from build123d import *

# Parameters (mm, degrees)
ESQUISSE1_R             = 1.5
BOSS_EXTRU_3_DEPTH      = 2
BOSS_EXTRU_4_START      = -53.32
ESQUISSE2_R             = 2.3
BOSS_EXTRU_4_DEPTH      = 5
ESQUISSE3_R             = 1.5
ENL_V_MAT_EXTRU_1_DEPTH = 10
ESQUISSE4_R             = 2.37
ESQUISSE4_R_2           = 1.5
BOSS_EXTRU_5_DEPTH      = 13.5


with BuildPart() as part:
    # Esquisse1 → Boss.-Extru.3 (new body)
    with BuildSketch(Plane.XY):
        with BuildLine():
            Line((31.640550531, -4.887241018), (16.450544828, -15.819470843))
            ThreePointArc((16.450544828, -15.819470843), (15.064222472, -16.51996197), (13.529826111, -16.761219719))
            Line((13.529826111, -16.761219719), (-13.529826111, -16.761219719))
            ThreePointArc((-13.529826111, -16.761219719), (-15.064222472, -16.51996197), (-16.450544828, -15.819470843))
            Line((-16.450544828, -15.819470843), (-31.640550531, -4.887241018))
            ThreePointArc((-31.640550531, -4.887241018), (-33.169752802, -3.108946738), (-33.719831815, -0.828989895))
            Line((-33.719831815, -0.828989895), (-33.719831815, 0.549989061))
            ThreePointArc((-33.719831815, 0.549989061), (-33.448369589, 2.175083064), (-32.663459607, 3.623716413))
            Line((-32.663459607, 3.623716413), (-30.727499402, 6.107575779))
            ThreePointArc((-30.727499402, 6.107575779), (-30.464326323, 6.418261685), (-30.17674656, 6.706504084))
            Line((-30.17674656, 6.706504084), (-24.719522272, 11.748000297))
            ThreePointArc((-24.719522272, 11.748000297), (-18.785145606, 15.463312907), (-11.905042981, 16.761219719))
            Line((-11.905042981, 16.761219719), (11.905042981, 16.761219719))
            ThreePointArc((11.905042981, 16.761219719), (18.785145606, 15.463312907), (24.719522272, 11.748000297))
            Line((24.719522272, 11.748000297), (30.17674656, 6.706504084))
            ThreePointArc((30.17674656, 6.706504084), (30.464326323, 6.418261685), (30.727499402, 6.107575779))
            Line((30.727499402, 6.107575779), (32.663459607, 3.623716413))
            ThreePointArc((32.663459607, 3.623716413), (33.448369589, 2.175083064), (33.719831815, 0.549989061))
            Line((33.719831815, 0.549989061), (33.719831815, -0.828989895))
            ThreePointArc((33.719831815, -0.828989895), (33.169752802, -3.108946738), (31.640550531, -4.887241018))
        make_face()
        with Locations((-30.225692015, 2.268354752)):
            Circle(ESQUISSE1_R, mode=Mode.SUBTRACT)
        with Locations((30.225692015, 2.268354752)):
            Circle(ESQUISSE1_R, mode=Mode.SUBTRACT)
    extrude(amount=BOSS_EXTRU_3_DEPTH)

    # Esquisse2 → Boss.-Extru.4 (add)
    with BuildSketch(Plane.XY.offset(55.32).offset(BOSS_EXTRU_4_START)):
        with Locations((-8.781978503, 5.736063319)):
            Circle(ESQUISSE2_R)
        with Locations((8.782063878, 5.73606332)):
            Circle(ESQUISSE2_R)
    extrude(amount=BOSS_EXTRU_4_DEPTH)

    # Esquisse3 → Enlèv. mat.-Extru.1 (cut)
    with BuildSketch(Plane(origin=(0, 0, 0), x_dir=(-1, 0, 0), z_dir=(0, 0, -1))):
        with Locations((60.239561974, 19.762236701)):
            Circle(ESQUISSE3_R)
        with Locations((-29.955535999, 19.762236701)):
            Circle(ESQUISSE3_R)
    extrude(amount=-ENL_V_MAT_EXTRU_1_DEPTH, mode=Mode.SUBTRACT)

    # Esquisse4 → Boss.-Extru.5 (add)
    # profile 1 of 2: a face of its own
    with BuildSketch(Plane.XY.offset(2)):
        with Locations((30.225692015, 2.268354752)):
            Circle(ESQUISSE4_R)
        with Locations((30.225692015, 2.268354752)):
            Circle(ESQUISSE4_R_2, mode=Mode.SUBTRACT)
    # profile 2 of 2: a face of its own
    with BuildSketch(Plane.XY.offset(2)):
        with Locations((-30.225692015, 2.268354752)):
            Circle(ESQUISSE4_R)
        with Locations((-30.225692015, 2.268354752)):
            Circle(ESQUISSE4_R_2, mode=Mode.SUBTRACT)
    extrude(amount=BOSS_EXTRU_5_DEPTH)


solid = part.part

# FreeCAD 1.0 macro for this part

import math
import FreeCAD as App
import Part
import Sketcher

doc = App.newDocument("Part")
body = doc.addObject("PartDesign::Body", "Body")

# Sketch on XY plane
sketch1 = doc.addObject("Sketcher::SketchObject", "Sketch")
body.addObject(sketch1)
sketch1.AttachmentSupport = (doc.XY_Plane, [""])
sketch1.MapMode = "FlatFace"
sketch1.addGeometry([
    Part.LineSegment(App.Vector(16.5, -15.8, 0), App.Vector(31.6, -4.9, 0)),  # 0
    Part.ArcOfCircle(Part.Circle(App.Vector(28.7, -0.8, 0), App.Vector(0, 0, 1), 5), math.radians(-54), math.radians(0)),  # 1
    Part.LineSegment(App.Vector(33.7, -0.8, 0), App.Vector(33.7, 0.5, 0)),  # 2
    Part.ArcOfCircle(Part.Circle(App.Vector(28.7, 0.5, 0), App.Vector(0, 0, 1), 5), math.radians(0), math.radians(38)),  # 3
    Part.LineSegment(App.Vector(32.7, 3.6, 0), App.Vector(30.7, 6.1, 0)),  # 4
    Part.ArcOfCircle(Part.Circle(App.Vector(26.8, 3, 0), App.Vector(0, 0, 1), 5), math.radians(37.93), math.radians(47.27)),  # 5
    Part.LineSegment(App.Vector(30.2, 6.7, 0), App.Vector(24.7, 11.7, 0)),  # 6
    Part.ArcOfCircle(Part.Circle(App.Vector(11.9, -2.1, 0), App.Vector(0, 0, 1), 18.9), math.radians(47), math.radians(90)),  # 7
    Part.LineSegment(App.Vector(11.9, 16.8, 0), App.Vector(-11.9, 16.8, 0)),  # 8
    Part.ArcOfCircle(Part.Circle(App.Vector(-11.9, -2.1, 0), App.Vector(0, 0, 1), 18.9), math.radians(90), math.radians(133)),  # 9
    Part.LineSegment(App.Vector(-24.7, 11.7, 0), App.Vector(-30.2, 6.7, 0)),  # 10
    Part.ArcOfCircle(Part.Circle(App.Vector(-26.8, 3, 0), App.Vector(0, 0, 1), 5), math.radians(132.73), math.radians(142.07)),  # 11
    Part.LineSegment(App.Vector(-30.7, 6.1, 0), App.Vector(-32.7, 3.6, 0)),  # 12
    Part.ArcOfCircle(Part.Circle(App.Vector(-28.7, 0.5, 0), App.Vector(0, 0, 1), 5), math.radians(142), math.radians(180)),  # 13
    Part.LineSegment(App.Vector(-33.7, 0.5, 0), App.Vector(-33.7, -0.8, 0)),  # 14
    Part.ArcOfCircle(Part.Circle(App.Vector(-28.7, -0.8, 0), App.Vector(0, 0, 1), 5), math.radians(-180), math.radians(-126)),  # 15
    Part.LineSegment(App.Vector(-31.6, -4.9, 0), App.Vector(-16.5, -15.8, 0)),  # 16
    Part.ArcOfCircle(Part.Circle(App.Vector(-13.5, -11.8, 0), App.Vector(0, 0, 1), 5), math.radians(-126), math.radians(-90)),  # 17
    Part.LineSegment(App.Vector(-13.5, -16.8, 0), App.Vector(13.5, -16.8, 0)),  # 18
    Part.ArcOfCircle(Part.Circle(App.Vector(13.5, -11.8, 0), App.Vector(0, 0, 1), 5), math.radians(-90), math.radians(-54)),  # 19
    Part.Circle(App.Vector(30.2, 2.3, 0), App.Vector(0, 0, 1), 1.5),  # 20
    Part.Circle(App.Vector(-30.2, 2.3, 0), App.Vector(0, 0, 1), 1.5),  # 21
], False)
sketch1.addConstraint([
    Sketcher.Constraint("Tangent", 0, 2, 1, 1),
    Sketcher.Constraint("Tangent", 1, 2, 2, 1),
    Sketcher.Constraint("Tangent", 2, 2, 3, 1),
    Sketcher.Constraint("Tangent", 3, 2, 4, 1),
    Sketcher.Constraint("Tangent", 4, 2, 5, 1),
    Sketcher.Constraint("Tangent", 5, 2, 6, 1),
    Sketcher.Constraint("Tangent", 6, 2, 7, 1),
    Sketcher.Constraint("Tangent", 7, 2, 8, 1),
    Sketcher.Constraint("Tangent", 8, 2, 9, 1),
    Sketcher.Constraint("Tangent", 9, 2, 10, 1),
    Sketcher.Constraint("Tangent", 10, 2, 11, 1),
    Sketcher.Constraint("Tangent", 11, 2, 12, 1),
    Sketcher.Constraint("Tangent", 12, 2, 13, 1),
    Sketcher.Constraint("Tangent", 13, 2, 14, 1),
    Sketcher.Constraint("Tangent", 14, 2, 15, 1),
    Sketcher.Constraint("Tangent", 15, 2, 16, 1),
    Sketcher.Constraint("Tangent", 16, 2, 17, 1),
    Sketcher.Constraint("Tangent", 17, 2, 18, 1),
    Sketcher.Constraint("Tangent", 18, 2, 19, 1),
    Sketcher.Constraint("Tangent", 19, 2, 0, 1),
    Sketcher.Constraint("Vertical", 2),
    Sketcher.Constraint("Horizontal", 8),
    Sketcher.Constraint("Vertical", 14),
    Sketcher.Constraint("Horizontal", 18),
    Sketcher.Constraint("Equal", 1, 3),
    Sketcher.Constraint("Equal", 3, 5),
    Sketcher.Constraint("Equal", 7, 9),
    Sketcher.Constraint("Equal", 5, 11),
    Sketcher.Constraint("Equal", 11, 13),
    Sketcher.Constraint("Equal", 13, 15),
    Sketcher.Constraint("Equal", 15, 17),
    Sketcher.Constraint("Equal", 17, 19),
    Sketcher.Constraint("Equal", 20, 21),
    Sketcher.Constraint("Symmetric", 5, 3, 11, 3, -2),
    Sketcher.Constraint("Symmetric", 3, 3, 13, 3, -2),
    Sketcher.Constraint("Symmetric", 20, 3, 21, 3, -2),
    Sketcher.Constraint("Symmetric", 0, 2, 15, 2, -2),
    Sketcher.Constraint("Horizontal", 6, 2, 9, 2),
    Sketcher.Constraint("Diameter", 20, 3.0),
    Sketcher.Constraint("Radius", 1, 5.0),
    Sketcher.Constraint("DistanceY", -1, 1, 6, 2, 11.748),
    Sketcher.Constraint("Radius", 7, 18.884397),
    Sketcher.Constraint("DistanceY", 2, 1, 2, 2, 1.378979),
    Sketcher.Constraint("DistanceX", -1, 1, 4, 2, 30.727499),
    Sketcher.Constraint("DistanceX", 16, 2, 9, 3, 4.545502),
    Sketcher.Constraint("DistanceX", 8, 2, 8, 1, 23.810086),
    Sketcher.Constraint("DistanceX", 18, 1, 18, 2, 27.059652),
    Sketcher.Constraint("DistanceX", -1, 1, 1, 3, 28.719832),
    Sketcher.Constraint("DistanceY", 1, 3, -1, 1, 0.82899),
    Sketcher.Constraint("DistanceX", -1, 1, 5, 3, 26.783872),
    Sketcher.Constraint("DistanceX", 3, 3, 20, 3, 1.50586),
    Sketcher.Constraint("DistanceY", 7, 3, 20, 3, 4.391532),
])
pad1 = doc.addObject("PartDesign::Pad", "Pad")
body.addObject(pad1)
pad1.Profile = sketch1
pad1.Length = 2

# Sketch on XY plane
sketch2 = doc.addObject("Sketcher::SketchObject", "Sketch001")
body.addObject(sketch2)
sketch2.AttachmentSupport = (doc.XY_Plane, [""])
sketch2.MapMode = "FlatFace"
sketch2.AttachmentOffset = App.Placement(App.Vector(0, 0, 2), App.Rotation())
sketch2.addGeometry([
    Part.Circle(App.Vector(-8.8, 5.7, 0), App.Vector(0, 0, 1), 2.3),
    Part.Circle(App.Vector(8.8, 5.7, 0), App.Vector(0, 0, 1), 2.3),
], False)
sketch2.addConstraint([
    Sketcher.Constraint("Equal", 0, 1),
    Sketcher.Constraint("Horizontal", 0, 3, 1, 3),
    Sketcher.Constraint("Diameter", 0, 4.6),
    Sketcher.Constraint("DistanceX", 0, 3, -1, 1, 8.781979),
    Sketcher.Constraint("DistanceY", -1, 1, 0, 3, 5.736063),
    Sketcher.Constraint("DistanceX", -1, 1, 1, 3, 8.782064),
])
pad2 = doc.addObject("PartDesign::Pad", "Pad001")
body.addObject(pad2)
pad2.Profile = sketch2
pad2.Length = 5

# Sketch on XY plane
sketch3 = doc.addObject("Sketcher::SketchObject", "Sketch002")
body.addObject(sketch3)
sketch3.AttachmentSupport = (doc.XY_Plane, [""])
sketch3.MapMode = "FlatFace"
sketch3.addGeometry([
    Part.Circle(App.Vector(-60.2, 19.8, 0), App.Vector(0, 0, 1), 1.5),
    Part.Circle(App.Vector(30, 19.8, 0), App.Vector(0, 0, 1), 1.5),
], False)
sketch3.addConstraint([
    Sketcher.Constraint("Equal", 0, 1),
    Sketcher.Constraint("Horizontal", 0, 3, 1, 3),
    Sketcher.Constraint("Diameter", 0, 3.0),
    Sketcher.Constraint("DistanceX", 0, 3, -1, 1, 60.239562),
    Sketcher.Constraint("DistanceY", -1, 1, 0, 3, 19.762237),
    Sketcher.Constraint("DistanceX", -1, 1, 1, 3, 29.955536),
])
pocket1 = doc.addObject("PartDesign::Pocket", "Pocket")
body.addObject(pocket1)
pocket1.Profile = sketch3
pocket1.Length = 10
pocket1.Reversed = True

# Sketch on XY plane
sketch4 = doc.addObject("Sketcher::SketchObject", "Sketch003")
body.addObject(sketch4)
sketch4.AttachmentSupport = (doc.XY_Plane, [""])
sketch4.MapMode = "FlatFace"
sketch4.AttachmentOffset = App.Placement(App.Vector(0, 0, 2), App.Rotation())
sketch4.addGeometry([
    Part.Circle(App.Vector(30.2, 2.3, 0), App.Vector(0, 0, 1), 2.4),
    Part.Circle(App.Vector(30.2, 2.3, 0), App.Vector(0, 0, 1), 1.5),
    Part.Circle(App.Vector(-30.2, 2.3, 0), App.Vector(0, 0, 1), 2.4),
    Part.Circle(App.Vector(-30.2, 2.3, 0), App.Vector(0, 0, 1), 1.5),
], False)
sketch4.addConstraint([
    Sketcher.Constraint("Coincident", 1, 3, 0, 3),
    Sketcher.Constraint("Coincident", 3, 3, 2, 3),
    Sketcher.Constraint("Equal", 0, 2),
    Sketcher.Constraint("Equal", 1, 3),
    Sketcher.Constraint("Symmetric", 0, 3, 2, 3, -2),
    Sketcher.Constraint("Diameter", 1, 3.0),
    Sketcher.Constraint("Diameter", 0, 4.74),
    Sketcher.Constraint("DistanceX", -1, 1, 0, 3, 30.225692),
    Sketcher.Constraint("DistanceY", -1, 1, 0, 3, 2.268355),
])
pad3 = doc.addObject("PartDesign::Pad", "Pad002")
body.addObject(pad3)
pad3.Profile = sketch4
pad3.Length = 13.5

doc.recompute()
